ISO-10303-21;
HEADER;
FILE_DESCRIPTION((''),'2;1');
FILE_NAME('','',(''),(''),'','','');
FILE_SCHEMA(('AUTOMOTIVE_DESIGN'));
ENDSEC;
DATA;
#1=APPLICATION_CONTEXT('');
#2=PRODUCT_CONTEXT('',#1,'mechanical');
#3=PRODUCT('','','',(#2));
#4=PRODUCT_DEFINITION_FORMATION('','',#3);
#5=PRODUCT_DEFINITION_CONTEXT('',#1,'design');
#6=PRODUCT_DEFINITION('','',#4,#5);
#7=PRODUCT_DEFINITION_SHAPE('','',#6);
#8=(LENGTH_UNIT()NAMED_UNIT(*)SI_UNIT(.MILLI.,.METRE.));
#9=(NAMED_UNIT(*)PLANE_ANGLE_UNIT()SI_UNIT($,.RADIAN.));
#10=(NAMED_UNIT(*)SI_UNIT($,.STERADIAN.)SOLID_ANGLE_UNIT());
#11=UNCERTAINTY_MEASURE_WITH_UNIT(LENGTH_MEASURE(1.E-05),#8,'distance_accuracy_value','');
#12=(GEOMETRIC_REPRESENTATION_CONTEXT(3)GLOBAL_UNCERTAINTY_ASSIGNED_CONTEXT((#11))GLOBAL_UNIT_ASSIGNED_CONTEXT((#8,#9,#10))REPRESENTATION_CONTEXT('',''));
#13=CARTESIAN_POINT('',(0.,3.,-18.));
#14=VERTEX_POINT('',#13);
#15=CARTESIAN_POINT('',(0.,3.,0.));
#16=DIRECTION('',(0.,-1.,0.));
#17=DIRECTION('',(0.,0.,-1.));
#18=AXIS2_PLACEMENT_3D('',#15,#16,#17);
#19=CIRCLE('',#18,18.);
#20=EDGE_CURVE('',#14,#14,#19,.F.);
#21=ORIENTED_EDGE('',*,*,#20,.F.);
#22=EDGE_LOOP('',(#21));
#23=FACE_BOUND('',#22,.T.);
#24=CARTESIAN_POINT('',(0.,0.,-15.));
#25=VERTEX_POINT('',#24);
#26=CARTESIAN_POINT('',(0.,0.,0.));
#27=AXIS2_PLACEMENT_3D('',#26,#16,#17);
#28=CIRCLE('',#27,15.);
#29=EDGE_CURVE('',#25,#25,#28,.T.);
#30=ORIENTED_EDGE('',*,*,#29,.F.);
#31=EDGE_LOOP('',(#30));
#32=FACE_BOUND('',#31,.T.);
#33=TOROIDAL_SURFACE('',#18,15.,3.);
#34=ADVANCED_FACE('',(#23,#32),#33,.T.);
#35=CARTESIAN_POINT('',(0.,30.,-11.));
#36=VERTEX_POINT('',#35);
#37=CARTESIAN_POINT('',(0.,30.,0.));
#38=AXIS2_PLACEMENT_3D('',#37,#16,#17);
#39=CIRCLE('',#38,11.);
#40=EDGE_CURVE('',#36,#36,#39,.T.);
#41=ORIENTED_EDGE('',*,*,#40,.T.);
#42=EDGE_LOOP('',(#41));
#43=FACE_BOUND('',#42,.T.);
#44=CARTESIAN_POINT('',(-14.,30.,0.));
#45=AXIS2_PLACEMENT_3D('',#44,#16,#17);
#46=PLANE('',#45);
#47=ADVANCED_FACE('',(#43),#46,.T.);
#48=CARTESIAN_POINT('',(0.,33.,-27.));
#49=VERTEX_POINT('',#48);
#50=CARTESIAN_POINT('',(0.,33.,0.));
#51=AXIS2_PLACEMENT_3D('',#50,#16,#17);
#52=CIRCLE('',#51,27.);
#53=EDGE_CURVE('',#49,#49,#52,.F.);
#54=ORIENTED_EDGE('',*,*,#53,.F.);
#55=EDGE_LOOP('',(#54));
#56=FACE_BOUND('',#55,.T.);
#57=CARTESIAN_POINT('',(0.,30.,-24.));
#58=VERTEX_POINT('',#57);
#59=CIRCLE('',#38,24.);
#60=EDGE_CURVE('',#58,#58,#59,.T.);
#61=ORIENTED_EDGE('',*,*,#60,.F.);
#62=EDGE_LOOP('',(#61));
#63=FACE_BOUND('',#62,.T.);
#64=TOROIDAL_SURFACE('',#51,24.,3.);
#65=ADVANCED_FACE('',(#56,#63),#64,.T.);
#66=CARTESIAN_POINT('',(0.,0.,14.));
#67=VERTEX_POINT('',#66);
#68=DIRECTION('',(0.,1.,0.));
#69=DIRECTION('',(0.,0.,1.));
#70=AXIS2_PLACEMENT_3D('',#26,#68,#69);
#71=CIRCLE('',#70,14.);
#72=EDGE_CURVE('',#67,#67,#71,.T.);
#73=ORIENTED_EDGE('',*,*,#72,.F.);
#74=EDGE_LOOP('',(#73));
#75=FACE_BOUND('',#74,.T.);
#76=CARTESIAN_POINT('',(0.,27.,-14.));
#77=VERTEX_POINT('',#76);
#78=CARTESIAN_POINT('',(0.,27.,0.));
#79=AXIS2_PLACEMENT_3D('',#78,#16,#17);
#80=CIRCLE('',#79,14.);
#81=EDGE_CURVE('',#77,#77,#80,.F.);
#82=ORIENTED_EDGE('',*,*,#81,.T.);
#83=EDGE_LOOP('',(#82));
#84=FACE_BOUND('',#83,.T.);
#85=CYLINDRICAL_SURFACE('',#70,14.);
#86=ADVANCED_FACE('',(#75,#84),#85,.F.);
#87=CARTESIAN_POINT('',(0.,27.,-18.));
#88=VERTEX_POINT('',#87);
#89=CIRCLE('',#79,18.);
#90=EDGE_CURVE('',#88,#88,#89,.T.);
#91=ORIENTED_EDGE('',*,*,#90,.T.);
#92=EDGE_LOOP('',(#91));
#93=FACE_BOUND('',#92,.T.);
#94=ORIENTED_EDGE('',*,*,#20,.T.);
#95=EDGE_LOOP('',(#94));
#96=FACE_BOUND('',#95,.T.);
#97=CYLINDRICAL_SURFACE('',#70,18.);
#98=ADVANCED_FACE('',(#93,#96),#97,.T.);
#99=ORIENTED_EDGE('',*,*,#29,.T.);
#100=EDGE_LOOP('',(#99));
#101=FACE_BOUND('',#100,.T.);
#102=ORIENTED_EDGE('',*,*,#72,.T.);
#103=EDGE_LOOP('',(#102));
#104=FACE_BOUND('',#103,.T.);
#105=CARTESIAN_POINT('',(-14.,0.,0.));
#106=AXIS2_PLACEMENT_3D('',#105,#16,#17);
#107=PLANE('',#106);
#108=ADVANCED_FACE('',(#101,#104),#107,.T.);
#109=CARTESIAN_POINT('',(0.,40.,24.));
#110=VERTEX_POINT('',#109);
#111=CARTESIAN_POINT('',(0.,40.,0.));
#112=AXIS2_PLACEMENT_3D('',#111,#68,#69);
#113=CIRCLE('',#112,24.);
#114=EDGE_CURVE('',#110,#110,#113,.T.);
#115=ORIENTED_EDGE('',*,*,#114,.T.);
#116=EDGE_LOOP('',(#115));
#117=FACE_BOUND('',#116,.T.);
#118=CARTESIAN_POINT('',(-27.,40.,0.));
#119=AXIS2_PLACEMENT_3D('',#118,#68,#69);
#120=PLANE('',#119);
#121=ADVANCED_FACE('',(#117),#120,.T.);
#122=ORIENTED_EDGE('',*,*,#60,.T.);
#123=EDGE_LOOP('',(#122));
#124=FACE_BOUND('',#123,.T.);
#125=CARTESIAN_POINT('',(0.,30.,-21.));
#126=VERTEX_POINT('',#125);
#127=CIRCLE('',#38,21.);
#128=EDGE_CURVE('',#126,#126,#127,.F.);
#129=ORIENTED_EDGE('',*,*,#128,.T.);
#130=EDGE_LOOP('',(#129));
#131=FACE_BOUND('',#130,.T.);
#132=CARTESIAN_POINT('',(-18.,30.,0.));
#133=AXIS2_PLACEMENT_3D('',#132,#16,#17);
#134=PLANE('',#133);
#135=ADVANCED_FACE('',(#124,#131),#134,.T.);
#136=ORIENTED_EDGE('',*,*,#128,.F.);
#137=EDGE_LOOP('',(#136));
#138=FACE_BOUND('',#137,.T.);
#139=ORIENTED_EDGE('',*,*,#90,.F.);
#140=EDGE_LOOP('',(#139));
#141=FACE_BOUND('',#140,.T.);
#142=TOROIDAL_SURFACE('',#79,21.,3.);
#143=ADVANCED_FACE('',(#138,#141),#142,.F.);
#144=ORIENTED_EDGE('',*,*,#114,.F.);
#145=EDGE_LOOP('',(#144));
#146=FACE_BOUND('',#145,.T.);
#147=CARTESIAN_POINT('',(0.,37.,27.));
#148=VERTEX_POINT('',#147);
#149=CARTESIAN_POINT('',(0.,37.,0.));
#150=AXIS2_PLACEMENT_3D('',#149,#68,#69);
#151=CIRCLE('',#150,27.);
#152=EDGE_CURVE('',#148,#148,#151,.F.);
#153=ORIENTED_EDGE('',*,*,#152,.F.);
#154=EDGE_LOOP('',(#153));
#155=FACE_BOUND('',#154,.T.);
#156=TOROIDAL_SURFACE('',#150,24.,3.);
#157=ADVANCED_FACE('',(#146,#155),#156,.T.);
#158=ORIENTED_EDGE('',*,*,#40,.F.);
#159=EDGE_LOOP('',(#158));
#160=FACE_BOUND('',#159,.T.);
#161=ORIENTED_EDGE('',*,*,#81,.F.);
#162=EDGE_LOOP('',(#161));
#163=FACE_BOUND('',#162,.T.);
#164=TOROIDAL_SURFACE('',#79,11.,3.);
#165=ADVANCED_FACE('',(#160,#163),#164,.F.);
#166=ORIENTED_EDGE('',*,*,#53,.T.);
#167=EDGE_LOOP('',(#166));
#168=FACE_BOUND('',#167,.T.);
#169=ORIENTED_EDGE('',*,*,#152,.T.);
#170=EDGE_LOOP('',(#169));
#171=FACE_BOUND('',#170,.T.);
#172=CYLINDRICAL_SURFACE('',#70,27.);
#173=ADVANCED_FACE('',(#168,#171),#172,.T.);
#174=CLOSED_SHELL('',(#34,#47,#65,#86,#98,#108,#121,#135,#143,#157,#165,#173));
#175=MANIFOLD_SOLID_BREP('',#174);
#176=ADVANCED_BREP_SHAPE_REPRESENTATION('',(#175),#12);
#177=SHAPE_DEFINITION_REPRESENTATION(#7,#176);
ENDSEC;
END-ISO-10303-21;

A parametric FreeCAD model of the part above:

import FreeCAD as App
import Part
import Sketcher
Q = App.Units.Quantity


def edges_at(feature, points):
    """Names of the edges that pass closest to the given points."""
    edges = feature.Shape.Edges
    near = lambda p: min(range(len(edges)), key=lambda i: edges[i].distToShape(Part.Vertex(*p))[0])
    return sorted({f"Edge{near(p) + 1}" for p in points})

doc = App.newDocument("Part")
body = doc.addObject("PartDesign::Body", "Body")

# Sketch on XY plane
sketch1 = doc.addObject("Sketcher::SketchObject", "Sketch")
body.addObject(sketch1)
sketch1.AttachmentSupport = (doc.XY_Plane, [""])
sketch1.MapMode = "FlatFace"
sketch1.addGeometry([
    Part.LineSegment(App.Vector(-18, 30, 0), App.Vector(-18, 0, 0)),  # 0
    Part.LineSegment(App.Vector(-18, 0, 0), App.Vector(-14, 0, 0)),  # 1
    Part.LineSegment(App.Vector(-14, 0, 0), App.Vector(-14, 30, 0)),  # 2
    Part.LineSegment(App.Vector(-14, 30, 0), App.Vector(0, 30, 0)),  # 3
    Part.LineSegment(App.Vector(0, 30, 0), App.Vector(0, 40, 0)),  # 4
    Part.LineSegment(App.Vector(0, 40, 0), App.Vector(-27, 40, 0)),  # 5
    Part.LineSegment(App.Vector(-27, 40, 0), App.Vector(-27, 30, 0)),  # 6
    Part.LineSegment(App.Vector(-27, 30, 0), App.Vector(-18, 30, 0)),  # 7
], False)
sketch1.addConstraint([
    Sketcher.Constraint("Coincident", 0, 2, 1, 1),
    Sketcher.Constraint("Coincident", 1, 2, 2, 1),
    Sketcher.Constraint("Coincident", 2, 2, 3, 1),
    Sketcher.Constraint("Coincident", 3, 2, 4, 1),
    Sketcher.Constraint("Coincident", 4, 2, 5, 1),
    Sketcher.Constraint("Coincident", 5, 2, 6, 1),
    Sketcher.Constraint("Coincident", 6, 2, 7, 1),
    Sketcher.Constraint("Coincident", 7, 2, 0, 1),
    Sketcher.Constraint("Vertical", 0),
    Sketcher.Constraint("Horizontal", 1),
    Sketcher.Constraint("Vertical", 2),
    Sketcher.Constraint("Horizontal", 3),
    Sketcher.Constraint("Vertical", 4),
    Sketcher.Constraint("Horizontal", 5),
    Sketcher.Constraint("Vertical", 6),
    Sketcher.Constraint("Horizontal", 7),
    Sketcher.Constraint("PointOnObject", 0, 2, -1),
    Sketcher.Constraint("PointOnObject", 3, 2, -2),
    Sketcher.Constraint("Horizontal", 3, 2, 6, 2),
    Sketcher.Constraint("DistanceX", 1, 1, 1, 2, Q("4 mm")),
    Sketcher.Constraint("DistanceX", 3, 1, 3, 2, Q("14 mm")),
    Sketcher.Constraint("DistanceX", 5, 2, 5, 1, Q("27 mm")),
    Sketcher.Constraint("DistanceY", 0, 2, 0, 1, Q("30 mm")),
    Sketcher.Constraint("DistanceY", 4, 1, 4, 2, Q("10 mm")),
])
revolution = doc.addObject("PartDesign::Revolution", "Revolution")
body.addObject(revolution)
revolution.Profile = sketch1
revolution.ReferenceAxis = (sketch1, ["V_Axis"])
revolution.Angle = 360
doc.recompute()

fillet = doc.addObject("PartDesign::Fillet", "Fillet")
body.addObject(fillet)
fillet.Base = (revolution, edges_at(revolution, [
    (0, 0, -18),
    (0, 30, -14),
    (0, 40, -27),
    (0, 30, -27),
    (0, 30, -18),
]))
fillet.Radius = 3

doc.recompute()
